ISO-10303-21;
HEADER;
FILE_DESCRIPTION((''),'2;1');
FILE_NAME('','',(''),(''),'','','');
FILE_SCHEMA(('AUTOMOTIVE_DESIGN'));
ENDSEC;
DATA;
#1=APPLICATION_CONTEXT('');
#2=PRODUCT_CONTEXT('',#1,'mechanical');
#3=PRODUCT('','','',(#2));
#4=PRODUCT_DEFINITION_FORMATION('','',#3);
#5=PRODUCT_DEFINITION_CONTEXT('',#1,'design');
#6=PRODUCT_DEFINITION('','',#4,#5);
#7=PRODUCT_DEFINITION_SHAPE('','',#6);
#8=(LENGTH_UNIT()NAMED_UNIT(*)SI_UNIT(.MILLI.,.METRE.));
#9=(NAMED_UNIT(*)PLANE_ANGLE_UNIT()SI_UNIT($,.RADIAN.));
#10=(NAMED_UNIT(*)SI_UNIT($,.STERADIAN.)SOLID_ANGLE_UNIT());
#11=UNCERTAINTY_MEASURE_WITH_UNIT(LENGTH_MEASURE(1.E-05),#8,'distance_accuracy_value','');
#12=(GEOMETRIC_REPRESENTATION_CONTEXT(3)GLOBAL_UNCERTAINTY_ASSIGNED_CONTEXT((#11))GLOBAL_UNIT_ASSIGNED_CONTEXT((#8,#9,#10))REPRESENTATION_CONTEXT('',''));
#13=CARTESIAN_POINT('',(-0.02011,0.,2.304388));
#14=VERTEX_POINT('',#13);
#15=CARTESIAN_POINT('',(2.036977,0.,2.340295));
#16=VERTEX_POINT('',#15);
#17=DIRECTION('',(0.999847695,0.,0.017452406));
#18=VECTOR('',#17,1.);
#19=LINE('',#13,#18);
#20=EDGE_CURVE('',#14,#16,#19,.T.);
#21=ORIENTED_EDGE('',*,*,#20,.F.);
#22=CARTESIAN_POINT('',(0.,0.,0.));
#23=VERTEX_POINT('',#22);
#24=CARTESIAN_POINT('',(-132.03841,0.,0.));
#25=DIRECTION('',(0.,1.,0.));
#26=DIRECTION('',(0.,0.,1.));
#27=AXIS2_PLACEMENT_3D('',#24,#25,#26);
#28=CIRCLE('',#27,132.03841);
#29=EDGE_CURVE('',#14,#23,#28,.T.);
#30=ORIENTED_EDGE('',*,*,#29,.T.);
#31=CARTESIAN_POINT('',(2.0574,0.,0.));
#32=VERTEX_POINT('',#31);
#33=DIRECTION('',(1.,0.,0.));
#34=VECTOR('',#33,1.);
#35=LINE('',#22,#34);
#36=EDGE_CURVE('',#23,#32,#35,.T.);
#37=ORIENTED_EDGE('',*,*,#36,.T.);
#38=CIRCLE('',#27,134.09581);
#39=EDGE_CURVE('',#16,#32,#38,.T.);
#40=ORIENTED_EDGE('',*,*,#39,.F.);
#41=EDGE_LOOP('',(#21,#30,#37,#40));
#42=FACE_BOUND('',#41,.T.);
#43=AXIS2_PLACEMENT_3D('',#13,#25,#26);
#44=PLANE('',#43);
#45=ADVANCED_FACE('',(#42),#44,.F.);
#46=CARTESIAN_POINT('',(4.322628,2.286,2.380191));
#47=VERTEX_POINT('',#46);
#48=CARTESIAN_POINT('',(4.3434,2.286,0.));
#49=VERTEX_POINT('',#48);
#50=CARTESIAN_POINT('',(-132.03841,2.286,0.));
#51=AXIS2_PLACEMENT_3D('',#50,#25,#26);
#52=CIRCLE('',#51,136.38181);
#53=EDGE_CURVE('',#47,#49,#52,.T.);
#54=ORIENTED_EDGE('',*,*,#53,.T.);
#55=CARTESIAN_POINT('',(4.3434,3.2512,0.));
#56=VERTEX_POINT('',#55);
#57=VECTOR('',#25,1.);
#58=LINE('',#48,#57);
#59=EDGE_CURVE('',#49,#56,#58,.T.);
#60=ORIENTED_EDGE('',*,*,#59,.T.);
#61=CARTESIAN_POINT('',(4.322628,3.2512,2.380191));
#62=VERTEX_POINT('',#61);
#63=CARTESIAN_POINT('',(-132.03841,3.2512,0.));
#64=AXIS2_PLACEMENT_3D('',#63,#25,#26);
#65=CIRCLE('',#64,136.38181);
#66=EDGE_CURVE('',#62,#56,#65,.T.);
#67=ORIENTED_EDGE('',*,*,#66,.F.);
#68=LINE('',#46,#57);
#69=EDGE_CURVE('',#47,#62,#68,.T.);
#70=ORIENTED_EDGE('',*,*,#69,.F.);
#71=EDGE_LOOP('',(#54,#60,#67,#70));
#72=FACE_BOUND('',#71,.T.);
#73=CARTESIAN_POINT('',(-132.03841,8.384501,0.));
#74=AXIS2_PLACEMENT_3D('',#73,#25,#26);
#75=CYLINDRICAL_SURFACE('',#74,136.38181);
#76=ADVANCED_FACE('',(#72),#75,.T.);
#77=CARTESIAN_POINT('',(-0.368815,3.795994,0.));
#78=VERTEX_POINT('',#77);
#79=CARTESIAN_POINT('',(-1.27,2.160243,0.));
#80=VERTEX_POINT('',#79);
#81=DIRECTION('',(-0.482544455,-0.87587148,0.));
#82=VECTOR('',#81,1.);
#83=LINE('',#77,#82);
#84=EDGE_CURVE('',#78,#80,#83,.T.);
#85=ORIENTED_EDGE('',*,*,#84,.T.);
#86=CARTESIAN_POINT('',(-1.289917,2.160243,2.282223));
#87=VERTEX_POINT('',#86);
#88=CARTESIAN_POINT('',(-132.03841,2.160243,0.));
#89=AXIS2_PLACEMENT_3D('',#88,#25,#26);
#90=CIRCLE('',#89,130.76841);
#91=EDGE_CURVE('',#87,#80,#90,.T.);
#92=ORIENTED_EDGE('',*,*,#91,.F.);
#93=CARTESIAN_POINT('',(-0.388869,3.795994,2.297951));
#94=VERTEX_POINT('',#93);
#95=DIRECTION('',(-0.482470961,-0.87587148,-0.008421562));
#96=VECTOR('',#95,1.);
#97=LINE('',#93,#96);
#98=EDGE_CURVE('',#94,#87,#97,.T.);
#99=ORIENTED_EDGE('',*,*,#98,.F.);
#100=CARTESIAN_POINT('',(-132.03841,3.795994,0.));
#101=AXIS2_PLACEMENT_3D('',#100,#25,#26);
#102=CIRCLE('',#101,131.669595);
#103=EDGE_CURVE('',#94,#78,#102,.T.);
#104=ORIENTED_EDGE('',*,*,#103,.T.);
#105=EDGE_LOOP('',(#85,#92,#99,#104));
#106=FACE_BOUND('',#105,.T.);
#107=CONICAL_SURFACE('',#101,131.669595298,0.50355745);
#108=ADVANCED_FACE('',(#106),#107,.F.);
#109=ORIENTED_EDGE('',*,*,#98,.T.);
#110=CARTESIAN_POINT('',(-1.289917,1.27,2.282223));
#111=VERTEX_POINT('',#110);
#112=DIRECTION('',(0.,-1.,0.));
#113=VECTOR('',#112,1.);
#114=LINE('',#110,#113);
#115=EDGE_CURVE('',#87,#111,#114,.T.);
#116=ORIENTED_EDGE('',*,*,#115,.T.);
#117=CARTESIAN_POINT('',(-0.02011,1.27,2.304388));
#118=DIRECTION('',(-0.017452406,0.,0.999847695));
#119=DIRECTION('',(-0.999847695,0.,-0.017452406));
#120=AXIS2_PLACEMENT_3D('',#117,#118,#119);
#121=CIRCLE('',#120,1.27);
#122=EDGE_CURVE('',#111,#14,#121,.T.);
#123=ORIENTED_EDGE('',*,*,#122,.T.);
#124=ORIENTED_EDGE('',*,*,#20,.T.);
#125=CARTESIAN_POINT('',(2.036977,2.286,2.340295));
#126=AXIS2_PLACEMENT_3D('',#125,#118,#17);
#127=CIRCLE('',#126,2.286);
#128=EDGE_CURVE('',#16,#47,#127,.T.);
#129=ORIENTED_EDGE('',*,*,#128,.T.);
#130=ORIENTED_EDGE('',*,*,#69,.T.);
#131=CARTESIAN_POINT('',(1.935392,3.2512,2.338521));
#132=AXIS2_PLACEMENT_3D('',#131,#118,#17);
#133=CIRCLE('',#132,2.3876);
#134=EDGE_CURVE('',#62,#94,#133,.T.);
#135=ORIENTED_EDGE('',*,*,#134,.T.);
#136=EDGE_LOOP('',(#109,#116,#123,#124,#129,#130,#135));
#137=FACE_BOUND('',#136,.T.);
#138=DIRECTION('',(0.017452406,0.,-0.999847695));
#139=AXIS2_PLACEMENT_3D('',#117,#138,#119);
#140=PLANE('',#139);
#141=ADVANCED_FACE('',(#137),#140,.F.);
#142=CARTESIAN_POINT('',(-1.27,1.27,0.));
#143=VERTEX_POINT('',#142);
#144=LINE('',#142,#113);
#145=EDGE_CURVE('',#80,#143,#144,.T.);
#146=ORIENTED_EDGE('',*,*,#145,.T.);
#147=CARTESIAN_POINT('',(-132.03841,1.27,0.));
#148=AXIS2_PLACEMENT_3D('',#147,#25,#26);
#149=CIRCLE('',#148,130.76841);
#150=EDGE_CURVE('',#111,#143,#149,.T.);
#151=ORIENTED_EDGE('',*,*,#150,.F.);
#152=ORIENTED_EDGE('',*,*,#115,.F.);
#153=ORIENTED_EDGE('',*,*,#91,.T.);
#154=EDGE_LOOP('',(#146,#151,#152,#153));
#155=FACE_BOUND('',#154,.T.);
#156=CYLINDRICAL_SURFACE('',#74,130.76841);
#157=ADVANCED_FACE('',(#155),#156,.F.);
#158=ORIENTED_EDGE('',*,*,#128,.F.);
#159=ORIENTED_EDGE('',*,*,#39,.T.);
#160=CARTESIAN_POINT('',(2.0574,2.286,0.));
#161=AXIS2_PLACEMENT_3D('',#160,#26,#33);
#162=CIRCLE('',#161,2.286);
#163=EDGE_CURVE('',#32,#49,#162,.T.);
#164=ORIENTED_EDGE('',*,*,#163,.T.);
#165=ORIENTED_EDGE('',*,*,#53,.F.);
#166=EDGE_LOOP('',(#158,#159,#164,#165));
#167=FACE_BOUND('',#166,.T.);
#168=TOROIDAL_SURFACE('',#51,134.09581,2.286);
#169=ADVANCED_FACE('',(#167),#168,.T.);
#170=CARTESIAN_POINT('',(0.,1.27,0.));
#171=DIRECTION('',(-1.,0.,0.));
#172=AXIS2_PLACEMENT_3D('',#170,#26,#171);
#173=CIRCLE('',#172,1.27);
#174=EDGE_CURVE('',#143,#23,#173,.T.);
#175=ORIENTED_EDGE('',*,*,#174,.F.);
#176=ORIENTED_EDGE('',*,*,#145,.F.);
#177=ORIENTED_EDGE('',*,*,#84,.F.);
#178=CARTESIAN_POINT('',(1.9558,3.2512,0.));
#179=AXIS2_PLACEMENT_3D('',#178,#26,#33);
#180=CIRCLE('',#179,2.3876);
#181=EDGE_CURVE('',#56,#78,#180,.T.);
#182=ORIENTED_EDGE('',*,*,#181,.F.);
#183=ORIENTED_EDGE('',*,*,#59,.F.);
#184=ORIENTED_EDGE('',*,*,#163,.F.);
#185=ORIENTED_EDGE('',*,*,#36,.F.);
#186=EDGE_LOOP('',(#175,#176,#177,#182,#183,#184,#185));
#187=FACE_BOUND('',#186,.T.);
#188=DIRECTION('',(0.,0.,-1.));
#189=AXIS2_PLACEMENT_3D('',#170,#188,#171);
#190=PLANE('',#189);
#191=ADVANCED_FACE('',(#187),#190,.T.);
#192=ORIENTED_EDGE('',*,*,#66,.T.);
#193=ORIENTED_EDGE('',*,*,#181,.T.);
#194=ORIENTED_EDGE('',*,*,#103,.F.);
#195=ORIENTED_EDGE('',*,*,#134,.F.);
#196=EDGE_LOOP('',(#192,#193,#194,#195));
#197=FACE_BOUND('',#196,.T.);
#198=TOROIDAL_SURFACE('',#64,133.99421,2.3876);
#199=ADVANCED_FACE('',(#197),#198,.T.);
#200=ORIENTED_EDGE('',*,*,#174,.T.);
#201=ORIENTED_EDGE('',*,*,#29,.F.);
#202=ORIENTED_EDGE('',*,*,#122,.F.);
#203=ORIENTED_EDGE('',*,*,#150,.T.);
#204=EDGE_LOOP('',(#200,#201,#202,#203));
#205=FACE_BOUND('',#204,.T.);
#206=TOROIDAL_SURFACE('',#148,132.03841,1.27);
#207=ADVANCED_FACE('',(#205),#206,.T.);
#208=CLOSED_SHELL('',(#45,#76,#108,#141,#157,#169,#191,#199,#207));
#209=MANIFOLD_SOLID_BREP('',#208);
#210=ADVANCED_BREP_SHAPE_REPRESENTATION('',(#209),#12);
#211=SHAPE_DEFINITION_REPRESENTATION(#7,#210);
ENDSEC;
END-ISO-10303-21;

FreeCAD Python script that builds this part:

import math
import FreeCAD as App
import Part
import Sketcher
Q = App.Units.Quantity

doc = App.newDocument("Part")
body = doc.addObject("PartDesign::Body", "Body")

# Sketch on XY plane
sketch1 = body.newObject("Sketcher::SketchObject", "Sketch")
sketch1.AttachmentSupport = (doc.getObject("XY_Plane"), [""])
sketch1.MapMode = "FlatFace"
sketch1.addGeometry([
    Part.LineSegment(App.Vector(0, 0, 0), App.Vector(2.1, 0, 0)),  # 0
    Part.ArcOfCircle(Part.Circle(App.Vector(2.1, 2.3, 0), App.Vector(0, 0, 1), 2.3), math.radians(-90), math.radians(0)),  # 1
    Part.LineSegment(App.Vector(4.3, 2.3, 0), App.Vector(4.3, 3.3, 0)),  # 2
    Part.ArcOfCircle(Part.Circle(App.Vector(2, 3.3, 0), App.Vector(0, 0, 1), 2.4), math.radians(0), math.radians(167)),  # 3
    Part.LineSegment(App.Vector(-0.4, 3.8, 0), App.Vector(-1.3, 2.2, 0)),  # 4
    Part.LineSegment(App.Vector(-1.3, 2.2, 0), App.Vector(-1.3, 1.3, 0)),  # 5
    Part.ArcOfCircle(Part.Circle(App.Vector(0, 1.3, 0), App.Vector(0, 0, 1), 1.3), math.radians(180), math.radians(270)),  # 6
], False)
sketch1.addGeometry(Part.LineSegment(App.Vector(-132, 3.8, 0), App.Vector(-132, 0, 0)), True)  # axis
sketch1.addConstraint([
    Sketcher.Constraint("Tangent", 0, 2, 1, 1),
    Sketcher.Constraint("Tangent", 1, 2, 2, 1),
    Sketcher.Constraint("Tangent", 2, 2, 3, 1),
    Sketcher.Constraint("Coincident", 3, 2, 4, 1),
    Sketcher.Constraint("Coincident", 4, 2, 5, 1),
    Sketcher.Constraint("Tangent", 5, 2, 6, 1),
    Sketcher.Constraint("Tangent", 6, 2, 0, 1),
    Sketcher.Constraint("Horizontal", 0),
    Sketcher.Constraint("Vertical", 2),
    Sketcher.Constraint("Vertical", 5),
    Sketcher.Constraint("Vertical", 7),
    Sketcher.Constraint("Coincident", 6, 2, -1, 1),
    Sketcher.Constraint("PointOnObject", 7, 2, -1),
    Sketcher.Constraint("Horizontal", 3, 2, 7, 1),
    Sketcher.Constraint("Radius", 1, Q("0.09 in")),
    Sketcher.Constraint("Radius", 6, Q("0.05 in")),
    Sketcher.Constraint("Radius", 3, Q("0.094 in")),
    Sketcher.Constraint("DistanceX", 0, 1, 0, 2, Q("0.081 in")),
    Sketcher.Constraint("DistanceY", 2, 1, 2, 2, Q("0.038 in")),
    Sketcher.Constraint("Distance", 4, 1.867569),
    Sketcher.Constraint("DistanceY", 5, 2, 5, 1, 0.890243),
    Sketcher.Constraint("DistanceX", 7, 1, -1, 1, 132.03841),
])
revolution = body.newObject("PartDesign::Revolution", "Revolution")
revolution.Profile = sketch1
revolution.ReferenceAxis = (sketch1, ["Axis0"])
revolution.Angle = 1

doc.recompute()
